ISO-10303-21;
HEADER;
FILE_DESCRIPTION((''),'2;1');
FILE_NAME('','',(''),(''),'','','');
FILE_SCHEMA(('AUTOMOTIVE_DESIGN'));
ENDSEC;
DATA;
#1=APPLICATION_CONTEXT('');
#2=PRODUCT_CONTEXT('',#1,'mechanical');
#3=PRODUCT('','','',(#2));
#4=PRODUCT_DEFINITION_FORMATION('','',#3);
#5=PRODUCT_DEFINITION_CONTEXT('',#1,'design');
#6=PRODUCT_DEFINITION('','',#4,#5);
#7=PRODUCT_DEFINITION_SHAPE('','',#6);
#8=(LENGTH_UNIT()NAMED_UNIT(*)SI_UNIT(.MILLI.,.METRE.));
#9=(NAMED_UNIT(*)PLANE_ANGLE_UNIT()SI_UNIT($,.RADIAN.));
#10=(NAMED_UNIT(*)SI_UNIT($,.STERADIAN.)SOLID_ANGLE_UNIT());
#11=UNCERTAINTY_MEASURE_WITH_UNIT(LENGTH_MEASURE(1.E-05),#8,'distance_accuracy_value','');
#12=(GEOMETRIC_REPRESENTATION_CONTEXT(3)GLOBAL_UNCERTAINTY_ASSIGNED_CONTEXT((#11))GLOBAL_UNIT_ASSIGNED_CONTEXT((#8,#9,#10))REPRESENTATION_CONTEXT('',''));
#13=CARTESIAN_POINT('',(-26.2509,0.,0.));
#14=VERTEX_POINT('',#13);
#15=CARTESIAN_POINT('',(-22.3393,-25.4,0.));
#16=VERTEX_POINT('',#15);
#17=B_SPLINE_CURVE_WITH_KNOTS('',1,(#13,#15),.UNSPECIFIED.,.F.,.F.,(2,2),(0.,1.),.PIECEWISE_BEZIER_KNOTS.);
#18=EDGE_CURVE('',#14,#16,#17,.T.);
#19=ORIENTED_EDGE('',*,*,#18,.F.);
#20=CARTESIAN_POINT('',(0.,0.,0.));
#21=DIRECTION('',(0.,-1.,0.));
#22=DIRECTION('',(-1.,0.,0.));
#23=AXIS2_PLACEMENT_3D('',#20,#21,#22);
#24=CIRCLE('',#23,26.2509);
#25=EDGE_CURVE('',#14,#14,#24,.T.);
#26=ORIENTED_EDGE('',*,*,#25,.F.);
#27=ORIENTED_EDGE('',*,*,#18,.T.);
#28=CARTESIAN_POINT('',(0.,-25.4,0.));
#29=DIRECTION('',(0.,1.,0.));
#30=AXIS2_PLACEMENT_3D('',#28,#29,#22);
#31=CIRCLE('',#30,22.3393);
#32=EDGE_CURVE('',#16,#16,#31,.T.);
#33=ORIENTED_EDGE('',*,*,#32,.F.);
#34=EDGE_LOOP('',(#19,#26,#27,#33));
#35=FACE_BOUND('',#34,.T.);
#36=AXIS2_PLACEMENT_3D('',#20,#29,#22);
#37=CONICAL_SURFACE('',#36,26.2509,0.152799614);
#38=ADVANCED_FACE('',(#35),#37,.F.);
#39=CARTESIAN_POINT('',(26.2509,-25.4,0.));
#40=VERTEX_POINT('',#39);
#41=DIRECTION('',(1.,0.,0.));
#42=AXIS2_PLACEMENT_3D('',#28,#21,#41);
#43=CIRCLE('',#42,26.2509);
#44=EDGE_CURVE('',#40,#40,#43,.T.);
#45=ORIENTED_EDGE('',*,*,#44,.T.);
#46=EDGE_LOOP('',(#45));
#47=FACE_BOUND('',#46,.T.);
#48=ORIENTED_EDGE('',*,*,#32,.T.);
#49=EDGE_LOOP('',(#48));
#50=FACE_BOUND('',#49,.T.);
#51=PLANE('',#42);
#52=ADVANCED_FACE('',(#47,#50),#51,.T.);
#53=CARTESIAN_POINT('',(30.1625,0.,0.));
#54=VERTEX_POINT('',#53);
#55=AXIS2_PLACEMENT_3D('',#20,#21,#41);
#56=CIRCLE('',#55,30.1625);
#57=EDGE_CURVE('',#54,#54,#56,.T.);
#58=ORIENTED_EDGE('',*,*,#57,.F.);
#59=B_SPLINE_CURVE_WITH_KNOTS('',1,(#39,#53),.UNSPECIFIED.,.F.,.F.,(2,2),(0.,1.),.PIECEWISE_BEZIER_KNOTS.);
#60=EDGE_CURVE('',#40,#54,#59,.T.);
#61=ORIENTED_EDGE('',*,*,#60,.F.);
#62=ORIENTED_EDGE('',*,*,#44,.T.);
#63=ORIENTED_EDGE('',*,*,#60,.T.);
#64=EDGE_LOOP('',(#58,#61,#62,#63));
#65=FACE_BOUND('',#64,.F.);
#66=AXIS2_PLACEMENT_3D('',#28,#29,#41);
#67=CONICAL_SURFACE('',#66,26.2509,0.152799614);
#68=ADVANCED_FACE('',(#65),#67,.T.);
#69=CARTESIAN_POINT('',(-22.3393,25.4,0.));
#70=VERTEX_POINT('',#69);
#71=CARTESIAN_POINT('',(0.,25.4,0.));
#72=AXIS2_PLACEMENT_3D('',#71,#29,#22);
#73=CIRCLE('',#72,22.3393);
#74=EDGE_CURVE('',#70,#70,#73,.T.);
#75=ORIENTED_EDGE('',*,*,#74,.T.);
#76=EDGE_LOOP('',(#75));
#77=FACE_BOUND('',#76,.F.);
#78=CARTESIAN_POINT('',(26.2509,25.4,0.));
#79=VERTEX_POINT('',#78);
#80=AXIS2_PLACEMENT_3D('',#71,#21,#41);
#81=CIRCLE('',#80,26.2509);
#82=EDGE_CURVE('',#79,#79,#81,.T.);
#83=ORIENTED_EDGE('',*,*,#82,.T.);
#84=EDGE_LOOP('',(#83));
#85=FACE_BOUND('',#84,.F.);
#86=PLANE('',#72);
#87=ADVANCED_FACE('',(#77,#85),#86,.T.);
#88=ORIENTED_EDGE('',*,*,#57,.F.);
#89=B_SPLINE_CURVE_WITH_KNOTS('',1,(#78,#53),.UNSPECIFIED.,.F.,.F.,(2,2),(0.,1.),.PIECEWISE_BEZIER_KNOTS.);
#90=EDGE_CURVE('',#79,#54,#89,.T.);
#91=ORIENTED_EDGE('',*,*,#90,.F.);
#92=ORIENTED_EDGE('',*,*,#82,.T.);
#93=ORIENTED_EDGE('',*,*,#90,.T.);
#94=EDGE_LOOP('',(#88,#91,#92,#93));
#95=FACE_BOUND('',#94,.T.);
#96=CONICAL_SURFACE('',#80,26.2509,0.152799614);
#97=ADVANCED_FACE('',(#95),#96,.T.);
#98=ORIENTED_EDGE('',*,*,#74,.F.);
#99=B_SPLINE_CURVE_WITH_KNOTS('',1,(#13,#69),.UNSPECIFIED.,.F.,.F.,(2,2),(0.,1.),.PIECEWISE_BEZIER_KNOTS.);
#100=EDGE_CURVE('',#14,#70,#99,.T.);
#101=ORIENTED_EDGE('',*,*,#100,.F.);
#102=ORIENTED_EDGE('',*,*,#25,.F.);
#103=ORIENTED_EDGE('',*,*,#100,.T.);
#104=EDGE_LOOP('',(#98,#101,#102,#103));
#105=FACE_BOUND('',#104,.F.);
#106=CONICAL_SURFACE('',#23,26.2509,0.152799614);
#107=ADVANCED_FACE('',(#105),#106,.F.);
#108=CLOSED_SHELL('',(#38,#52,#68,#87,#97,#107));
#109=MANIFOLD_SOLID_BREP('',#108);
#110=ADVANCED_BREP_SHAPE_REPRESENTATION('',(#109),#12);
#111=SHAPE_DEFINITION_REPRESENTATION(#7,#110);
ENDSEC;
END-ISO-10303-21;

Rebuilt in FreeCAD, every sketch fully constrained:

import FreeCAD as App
import Part
import Sketcher

V = App.Vector
Q = App.Units.Quantity

doc = App.newDocument("Part")
params = doc.addObject("Spreadsheet::Sheet", "Params")
for row, (alias, value) in enumerate([
    ("sketch1_diameter", "2.067 in"),
    ("sketch2_diameter", "2.375 in"),
    ("sketch3_diameter", "2.067 in"),
    ("sketch4_diameter", "1.759 in"),
], start=1):
    params.set(f"A{row}", alias)
    params.set(f"B{row}", "=" + value)
    params.setAlias(f"B{row}", alias)

body = doc.addObject("PartDesign::Body", "Body")

sketch1 = body.newObject("Sketcher::SketchObject", "Sketch")
sketch1.AttachmentSupport = (doc.getObject("XZ_Plane"), [""])
sketch1.MapMode = "FlatFace"
sketch1.AttachmentOffset = App.Placement(V(0, 0, 1 * 25.4), App.Rotation())
sketch1.addGeometry(Part.Circle(V(0, 0, 0), V(0, 0, 1), 26.2509), False)
sketch1.addConstraint(Sketcher.Constraint("Coincident", 0, 3, -1, 1))
sketch1.addConstraint(Sketcher.Constraint("Diameter", 0, Q("2.067 in")))
sketch1.setExpression("Constraints[1]", "Params.sketch1_diameter")

sketch2 = body.newObject("Sketcher::SketchObject", "Sketch001")
sketch2.AttachmentSupport = (doc.getObject("XZ_Plane"), [""])
sketch2.MapMode = "FlatFace"
sketch2.addGeometry(Part.Circle(V(0, 0, 0), V(0, 0, 1), 30.1625), False)
sketch2.addConstraint(Sketcher.Constraint("Coincident", 0, 3, -1, 1))
sketch2.addConstraint(Sketcher.Constraint("Diameter", 0, Q("2.375 in")))
sketch2.setExpression("Constraints[1]", "Params.sketch2_diameter")

additiveloft = body.newObject("PartDesign::AdditiveLoft", "AdditiveLoft")
additiveloft.Profile = sketch1
additiveloft.Sections = [sketch2]

sketch3 = body.newObject("Sketcher::SketchObject", "Sketch002")
sketch3.AttachmentSupport = (doc.getObject("XZ_Plane"), [""])
sketch3.MapMode = "FlatFace"
sketch3.addGeometry(Part.Circle(V(0, 0, 0), V(0, 0, 1), 26.2509), False)
sketch3.addConstraint(Sketcher.Constraint("Coincident", 0, 3, -1, 1))
sketch3.addConstraint(Sketcher.Constraint("Diameter", 0, Q("2.067 in")))
sketch3.setExpression("Constraints[1]", "Params.sketch3_diameter")

sketch4 = body.newObject("Sketcher::SketchObject", "Sketch003")
sketch4.AttachmentSupport = (doc.getObject("XZ_Plane"), [""])
sketch4.MapMode = "FlatFace"
sketch4.AttachmentOffset = App.Placement(V(0, 0, 1 * 25.4), App.Rotation())
sketch4.addGeometry(Part.Circle(V(0, 0, 0), V(0, 0, 1), 22.3393), False)
sketch4.addConstraint(Sketcher.Constraint("Coincident", 0, 3, -1, 1))
sketch4.addConstraint(Sketcher.Constraint("Diameter", 0, Q("1.759 in")))
sketch4.setExpression("Constraints[1]", "Params.sketch4_diameter")

subtractiveloft = body.newObject("PartDesign::SubtractiveLoft", "SubtractiveLoft")
subtractiveloft.Profile = sketch3
subtractiveloft.Sections = [sketch4]
body2 = doc.addObject("PartDesign::Body", "Body001")
doc.recompute()

body2.BaseFeature = body
doc.recompute()

mirroring = doc.addObject("Part::Mirroring", "Mirroring")
mirroring.Source = body
mirroring.Base = V(0, 0, 0)
mirroring.Normal = V(0, 1, 0)
body3 = doc.addObject("PartDesign::Body", "Body002")
body3.BaseFeature = mirroring
boolean = body2.newObject("PartDesign::Boolean", "Boolean")
boolean.Type = "Fuse"
boolean.addObjects([body3])
doc.recompute()
mirroring.Visibility = False

doc.recompute()
